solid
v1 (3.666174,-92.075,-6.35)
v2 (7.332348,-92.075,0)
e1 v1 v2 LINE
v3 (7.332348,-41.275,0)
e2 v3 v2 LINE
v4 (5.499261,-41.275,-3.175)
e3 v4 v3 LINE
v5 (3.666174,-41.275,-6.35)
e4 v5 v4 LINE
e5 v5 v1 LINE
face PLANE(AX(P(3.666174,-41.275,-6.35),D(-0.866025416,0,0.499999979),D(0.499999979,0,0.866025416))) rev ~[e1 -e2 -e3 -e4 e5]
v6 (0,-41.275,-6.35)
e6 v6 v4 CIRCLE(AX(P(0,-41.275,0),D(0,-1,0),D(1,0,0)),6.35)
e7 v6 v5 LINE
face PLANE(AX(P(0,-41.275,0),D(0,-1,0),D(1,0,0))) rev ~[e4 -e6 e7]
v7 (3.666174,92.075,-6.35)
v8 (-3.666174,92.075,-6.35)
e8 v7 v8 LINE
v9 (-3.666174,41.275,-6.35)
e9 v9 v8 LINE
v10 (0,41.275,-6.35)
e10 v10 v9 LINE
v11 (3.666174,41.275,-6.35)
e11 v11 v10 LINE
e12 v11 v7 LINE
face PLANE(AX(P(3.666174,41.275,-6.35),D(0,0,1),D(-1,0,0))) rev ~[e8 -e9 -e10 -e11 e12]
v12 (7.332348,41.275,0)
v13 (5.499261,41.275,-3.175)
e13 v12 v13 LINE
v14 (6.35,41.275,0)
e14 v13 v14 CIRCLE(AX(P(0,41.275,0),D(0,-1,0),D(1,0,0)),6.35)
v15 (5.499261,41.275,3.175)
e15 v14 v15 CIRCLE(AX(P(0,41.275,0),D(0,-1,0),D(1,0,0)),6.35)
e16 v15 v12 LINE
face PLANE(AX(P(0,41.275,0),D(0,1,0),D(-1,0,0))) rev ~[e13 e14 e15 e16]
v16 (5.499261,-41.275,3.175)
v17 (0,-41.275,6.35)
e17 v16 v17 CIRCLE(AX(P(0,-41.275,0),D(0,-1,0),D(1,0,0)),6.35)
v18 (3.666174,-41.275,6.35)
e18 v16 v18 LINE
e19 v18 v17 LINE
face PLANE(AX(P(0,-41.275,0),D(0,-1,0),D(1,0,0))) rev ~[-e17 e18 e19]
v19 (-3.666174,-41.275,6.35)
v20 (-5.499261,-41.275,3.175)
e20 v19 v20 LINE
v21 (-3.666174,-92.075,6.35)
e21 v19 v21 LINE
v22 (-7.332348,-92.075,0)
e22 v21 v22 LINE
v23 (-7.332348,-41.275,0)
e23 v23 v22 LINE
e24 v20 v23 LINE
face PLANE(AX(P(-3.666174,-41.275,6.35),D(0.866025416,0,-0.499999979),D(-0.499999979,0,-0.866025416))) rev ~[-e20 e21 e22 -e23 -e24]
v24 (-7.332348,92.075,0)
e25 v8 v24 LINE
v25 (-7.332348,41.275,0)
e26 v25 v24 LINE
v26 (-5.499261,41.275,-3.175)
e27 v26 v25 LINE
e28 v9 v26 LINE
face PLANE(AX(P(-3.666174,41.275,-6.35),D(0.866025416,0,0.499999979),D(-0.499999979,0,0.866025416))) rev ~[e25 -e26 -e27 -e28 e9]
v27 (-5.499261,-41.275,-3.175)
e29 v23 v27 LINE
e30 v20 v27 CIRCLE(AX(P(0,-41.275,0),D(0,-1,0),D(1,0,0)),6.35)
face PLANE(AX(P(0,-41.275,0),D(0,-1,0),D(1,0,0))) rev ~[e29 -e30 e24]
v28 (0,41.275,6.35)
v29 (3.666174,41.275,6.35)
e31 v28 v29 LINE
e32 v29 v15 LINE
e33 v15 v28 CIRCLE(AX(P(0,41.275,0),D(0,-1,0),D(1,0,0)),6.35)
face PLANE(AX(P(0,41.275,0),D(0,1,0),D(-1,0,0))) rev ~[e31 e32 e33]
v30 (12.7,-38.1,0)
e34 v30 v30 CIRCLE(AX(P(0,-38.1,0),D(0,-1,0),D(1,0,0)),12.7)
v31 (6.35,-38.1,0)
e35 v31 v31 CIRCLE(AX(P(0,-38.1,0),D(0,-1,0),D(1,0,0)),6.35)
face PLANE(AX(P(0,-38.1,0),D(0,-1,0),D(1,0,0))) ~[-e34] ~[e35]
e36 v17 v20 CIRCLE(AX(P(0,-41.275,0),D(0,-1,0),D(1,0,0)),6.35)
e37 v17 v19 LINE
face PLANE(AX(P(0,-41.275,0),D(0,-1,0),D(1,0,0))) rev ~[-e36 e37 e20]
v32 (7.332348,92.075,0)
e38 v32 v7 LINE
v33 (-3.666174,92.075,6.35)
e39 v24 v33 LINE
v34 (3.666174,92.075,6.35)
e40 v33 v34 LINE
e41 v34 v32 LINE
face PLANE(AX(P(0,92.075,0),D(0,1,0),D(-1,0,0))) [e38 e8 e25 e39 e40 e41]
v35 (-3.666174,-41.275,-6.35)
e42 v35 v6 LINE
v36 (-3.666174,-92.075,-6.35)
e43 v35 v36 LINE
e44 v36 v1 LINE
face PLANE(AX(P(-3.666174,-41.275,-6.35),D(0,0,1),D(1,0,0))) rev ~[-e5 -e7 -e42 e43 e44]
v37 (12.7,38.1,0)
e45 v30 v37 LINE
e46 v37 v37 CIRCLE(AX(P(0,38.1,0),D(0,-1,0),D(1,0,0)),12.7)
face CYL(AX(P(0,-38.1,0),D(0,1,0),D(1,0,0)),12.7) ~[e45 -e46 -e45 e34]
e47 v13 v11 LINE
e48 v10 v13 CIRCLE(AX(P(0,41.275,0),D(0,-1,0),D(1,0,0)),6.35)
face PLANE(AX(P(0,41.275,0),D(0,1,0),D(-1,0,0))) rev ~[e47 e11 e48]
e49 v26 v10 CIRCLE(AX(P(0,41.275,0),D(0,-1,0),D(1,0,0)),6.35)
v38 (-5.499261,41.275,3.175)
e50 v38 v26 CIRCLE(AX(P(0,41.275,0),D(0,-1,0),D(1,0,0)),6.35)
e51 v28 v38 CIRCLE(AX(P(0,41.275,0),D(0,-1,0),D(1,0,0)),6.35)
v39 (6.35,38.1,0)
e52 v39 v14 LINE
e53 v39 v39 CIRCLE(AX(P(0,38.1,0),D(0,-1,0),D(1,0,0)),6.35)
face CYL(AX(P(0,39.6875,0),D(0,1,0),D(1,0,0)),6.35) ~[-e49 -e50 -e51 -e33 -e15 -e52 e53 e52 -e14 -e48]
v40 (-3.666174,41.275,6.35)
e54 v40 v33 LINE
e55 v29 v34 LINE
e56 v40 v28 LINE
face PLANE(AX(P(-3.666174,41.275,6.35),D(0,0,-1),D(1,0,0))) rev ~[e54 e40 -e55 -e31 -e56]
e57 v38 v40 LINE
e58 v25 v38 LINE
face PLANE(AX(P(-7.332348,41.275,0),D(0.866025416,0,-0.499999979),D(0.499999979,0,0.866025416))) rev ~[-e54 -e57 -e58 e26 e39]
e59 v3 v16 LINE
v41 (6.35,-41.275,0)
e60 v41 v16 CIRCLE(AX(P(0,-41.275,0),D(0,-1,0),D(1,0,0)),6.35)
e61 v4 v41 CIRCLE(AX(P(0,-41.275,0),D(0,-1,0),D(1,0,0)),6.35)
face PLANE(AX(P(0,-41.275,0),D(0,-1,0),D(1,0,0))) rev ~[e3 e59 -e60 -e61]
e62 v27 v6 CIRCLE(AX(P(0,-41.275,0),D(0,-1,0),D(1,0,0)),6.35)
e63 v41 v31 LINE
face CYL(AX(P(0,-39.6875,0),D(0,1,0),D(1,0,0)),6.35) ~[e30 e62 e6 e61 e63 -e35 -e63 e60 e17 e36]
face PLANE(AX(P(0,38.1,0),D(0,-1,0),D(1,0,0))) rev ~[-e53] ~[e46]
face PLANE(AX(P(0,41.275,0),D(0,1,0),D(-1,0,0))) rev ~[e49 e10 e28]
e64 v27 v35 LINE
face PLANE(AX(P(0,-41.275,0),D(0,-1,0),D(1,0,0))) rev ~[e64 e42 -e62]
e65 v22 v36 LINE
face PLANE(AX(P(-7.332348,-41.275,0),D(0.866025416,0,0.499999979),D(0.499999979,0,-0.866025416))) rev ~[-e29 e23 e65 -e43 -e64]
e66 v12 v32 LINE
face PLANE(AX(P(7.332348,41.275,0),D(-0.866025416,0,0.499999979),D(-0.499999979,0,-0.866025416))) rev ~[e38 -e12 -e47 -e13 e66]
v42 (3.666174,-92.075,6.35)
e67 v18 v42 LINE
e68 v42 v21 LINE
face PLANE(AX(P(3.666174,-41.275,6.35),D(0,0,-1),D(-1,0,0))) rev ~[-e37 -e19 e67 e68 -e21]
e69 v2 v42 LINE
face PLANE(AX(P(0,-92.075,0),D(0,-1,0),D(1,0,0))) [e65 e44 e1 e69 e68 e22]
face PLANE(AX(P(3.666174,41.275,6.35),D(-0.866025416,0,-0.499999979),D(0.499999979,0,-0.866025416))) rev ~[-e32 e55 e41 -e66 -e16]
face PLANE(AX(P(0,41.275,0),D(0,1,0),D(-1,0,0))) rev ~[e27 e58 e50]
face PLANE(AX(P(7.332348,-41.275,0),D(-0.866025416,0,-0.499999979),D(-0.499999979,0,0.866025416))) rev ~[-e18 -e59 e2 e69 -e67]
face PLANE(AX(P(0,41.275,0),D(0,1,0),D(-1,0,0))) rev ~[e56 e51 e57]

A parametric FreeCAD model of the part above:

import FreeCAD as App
import Part
import Sketcher
Q = App.Units.Quantity

doc = App.newDocument("Part")
body = doc.addObject("PartDesign::Body", "Body")

# Sketch on XY plane
sketch1 = body.newObject("Sketcher::SketchObject", "Sketch")
sketch1.AttachmentSupport = (doc.getObject("XY_Plane"), [""])
sketch1.MapMode = "FlatFace"
sketch1.addGeometry(Part.LineSegment(App.Vector(0, 41.275, 0), App.Vector(0, -41.275, 0)), False)
sketch1.addGeometry(Part.LineSegment(App.Vector(0, -41.275, 0), App.Vector(6.35, -41.275, 0)), False)
sketch1.addGeometry(Part.LineSegment(App.Vector(6.35, -41.275, 0), App.Vector(6.35, -38.1, 0)), False)
sketch1.addGeometry(Part.LineSegment(App.Vector(6.35, -38.1, 0), App.Vector(12.7, -38.1, 0)), False)
sketch1.addGeometry(Part.LineSegment(App.Vector(12.7, -38.1, 0), App.Vector(12.7, 38.1, 0)), False)
sketch1.addGeometry(Part.LineSegment(App.Vector(12.7, 38.1, 0), App.Vector(6.35, 38.1, 0)), False)
sketch1.addGeometry(Part.LineSegment(App.Vector(6.35, 38.1, 0), App.Vector(6.35, 41.275, 0)), False)
sketch1.addGeometry(Part.LineSegment(App.Vector(6.35, 41.275, 0), App.Vector(0, 41.275, 0)), False)
sketch1.addConstraint(Sketcher.Constraint("Coincident", 0, 2, 1, 1))
sketch1.addConstraint(Sketcher.Constraint("Coincident", 1, 2, 2, 1))
sketch1.addConstraint(Sketcher.Constraint("Coincident", 2, 2, 3, 1))
sketch1.addConstraint(Sketcher.Constraint("Coincident", 3, 2, 4, 1))
sketch1.addConstraint(Sketcher.Constraint("Coincident", 4, 2, 5, 1))
sketch1.addConstraint(Sketcher.Constraint("Coincident", 5, 2, 6, 1))
sketch1.addConstraint(Sketcher.Constraint("Coincident", 6, 2, 7, 1))
sketch1.addConstraint(Sketcher.Constraint("Coincident", 7, 2, 0, 1))
sketch1.addConstraint(Sketcher.Constraint("Vertical", 0))
sketch1.addConstraint(Sketcher.Constraint("Horizontal", 1))
sketch1.addConstraint(Sketcher.Constraint("Vertical", 2))
sketch1.addConstraint(Sketcher.Constraint("Horizontal", 3))
sketch1.addConstraint(Sketcher.Constraint("Vertical", 4))
sketch1.addConstraint(Sketcher.Constraint("Horizontal", 5))
sketch1.addConstraint(Sketcher.Constraint("Vertical", 6))
sketch1.addConstraint(Sketcher.Constraint("Horizontal", 7))
sketch1.addConstraint(Sketcher.Constraint("Symmetric", 0, 2, 7, 2, -1, 1))
sketch1.addConstraint(Sketcher.Constraint("Symmetric", 2, 2, 5, 2, -1))
sketch1.addConstraint(Sketcher.Constraint("Equal", 1, 3))
sketch1.addConstraint(Sketcher.Constraint("DistanceY", 4, 1, 4, 2, Q("3 in")))
sketch1.addConstraint(Sketcher.Constraint("DistanceX", 1, 1, 1, 2, Q("0.25 in")))
sketch1.addConstraint(Sketcher.Constraint("DistanceY", 0, 2, 0, 1, Q("3.25 in")))
revolution = body.newObject("PartDesign::Revolution", "Revolution")
revolution.Profile = sketch1
revolution.ReferenceAxis = (sketch1, ["V_Axis"])
revolution.Angle = 360

# Sketch on XZ plane
sketch2 = body.newObject("Sketcher::SketchObject", "Sketch001")
sketch2.AttachmentSupport = (doc.getObject("XZ_Plane"), [""])
sketch2.MapMode = "FlatFace"
sketch2.AttachmentOffset = App.Placement(App.Vector(0, 0, -1.625 * 25.4), App.Rotation())
sketch2.addGeometry(Part.LineSegment(App.Vector(-7.332348, 0, 0), App.Vector(-3.666174, 6.35, 0)), False)
sketch2.addGeometry(Part.LineSegment(App.Vector(-3.666174, 6.35, 0), App.Vector(3.666174, 6.35, 0)), False)
sketch2.addGeometry(Part.LineSegment(App.Vector(3.666174, 6.35, 0), App.Vector(7.332348, 0, 0)), False)
sketch2.addGeometry(Part.LineSegment(App.Vector(7.332348, 0, 0), App.Vector(3.666174, -6.35, 0)), False)
sketch2.addGeometry(Part.LineSegment(App.Vector(3.666174, -6.35, 0), App.Vector(-3.666174, -6.35, 0)), False)
sketch2.addGeometry(Part.LineSegment(App.Vector(-3.666174, -6.35, 0), App.Vector(-7.332348, 0, 0)), False)
sketch2.addConstraint(Sketcher.Constraint("Coincident", 0, 2, 1, 1))
sketch2.addConstraint(Sketcher.Constraint("Coincident", 1, 2, 2, 1))
sketch2.addConstraint(Sketcher.Constraint("Coincident", 2, 2, 3, 1))
sketch2.addConstraint(Sketcher.Constraint("Coincident", 3, 2, 4, 1))
sketch2.addConstraint(Sketcher.Constraint("Coincident", 4, 2, 5, 1))
sketch2.addConstraint(Sketcher.Constraint("Coincident", 5, 2, 0, 1))
sketch2.addConstraint(Sketcher.Constraint("Horizontal", 1))
sketch2.addConstraint(Sketcher.Constraint("Horizontal", 4))
sketch2.addConstraint(Sketcher.Constraint("Symmetric", 0, 2, 3, 2, -1, 1))
sketch2.addConstraint(Sketcher.Constraint("Symmetric", 2, 2, 5, 2, -1, 1))
sketch2.addConstraint(Sketcher.Constraint("PointOnObject", 2, 2, -1))
sketch2.addConstraint(Sketcher.Constraint("Parallel", 2, 5))
sketch2.addConstraint(Sketcher.Constraint("Vertical", 1, 2, 3, 2))
sketch2.addConstraint(Sketcher.Constraint("Angle", 0, Q("60.000001 deg")))
sketch2.addConstraint(Sketcher.Constraint("DistanceY", 3, 2, 1, 2, Q("0.5 in")))
sketch2.addConstraint(Sketcher.Constraint("DistanceX", 1, 1, 1, 2, Q("7.332348 mm")))
pad1 = body.newObject("PartDesign::Pad", "Pad")
pad1.Profile = sketch2
pad1.Length = Q("2 in")
pad1.Reversed = True

# Sketch on XZ plane
sketch3 = body.newObject("Sketcher::SketchObject", "Sketch002")
sketch3.AttachmentSupport = (doc.getObject("XZ_Plane"), [""])
sketch3.MapMode = "FlatFace"
sketch3.AttachmentOffset = App.Placement(App.Vector(0, 0, 1.625 * 25.4), App.Rotation())
sketch3.addGeometry(Part.LineSegment(App.Vector(7.332348, 0, 0), App.Vector(3.666174, 6.35, 0)), False)
sketch3.addGeometry(Part.LineSegment(App.Vector(3.666174, 6.35, 0), App.Vector(-3.666174, 6.35, 0)), False)
sketch3.addGeometry(Part.LineSegment(App.Vector(-3.666174, 6.35, 0), App.Vector(-7.332348, 0, 0)), False)
sketch3.addGeometry(Part.LineSegment(App.Vector(-7.332348, 0, 0), App.Vector(-3.666174, -6.35, 0)), False)
sketch3.addGeometry(Part.LineSegment(App.Vector(-3.666174, -6.35, 0), App.Vector(3.666174, -6.35, 0)), False)
sketch3.addGeometry(Part.LineSegment(App.Vector(3.666174, -6.35, 0), App.Vector(7.332348, 0, 0)), False)
sketch3.addConstraint(Sketcher.Constraint("Coincident", 0, 2, 1, 1))
sketch3.addConstraint(Sketcher.Constraint("Coincident", 1, 2, 2, 1))
sketch3.addConstraint(Sketcher.Constraint("Coincident", 2, 2, 3, 1))
sketch3.addConstraint(Sketcher.Constraint("Coincident", 3, 2, 4, 1))
sketch3.addConstraint(Sketcher.Constraint("Coincident", 4, 2, 5, 1))
sketch3.addConstraint(Sketcher.Constraint("Coincident", 5, 2, 0, 1))
sketch3.addConstraint(Sketcher.Constraint("Horizontal", 1))
sketch3.addConstraint(Sketcher.Constraint("Horizontal", 4))
sketch3.addConstraint(Sketcher.Constraint("Symmetric", 0, 2, 3, 2, -1, 1))
sketch3.addConstraint(Sketcher.Constraint("Symmetric", 2, 2, 5, 2, -1, 1))
sketch3.addConstraint(Sketcher.Constraint("PointOnObject", 2, 2, -1))
sketch3.addConstraint(Sketcher.Constraint("Parallel", 2, 5))
sketch3.addConstraint(Sketcher.Constraint("Vertical", 1, 2, 3, 2))
sketch3.addConstraint(Sketcher.Constraint("Angle", 0, Q("119.999999 deg")))
sketch3.addConstraint(Sketcher.Constraint("DistanceY", 3, 2, 1, 2, Q("0.5 in")))
sketch3.addConstraint(Sketcher.Constraint("DistanceX", 1, 2, 1, 1, Q("7.332348 mm")))
pad2 = body.newObject("PartDesign::Pad", "Pad001")
pad2.Profile = sketch3
pad2.Length = Q("2 in")

doc.recompute()
